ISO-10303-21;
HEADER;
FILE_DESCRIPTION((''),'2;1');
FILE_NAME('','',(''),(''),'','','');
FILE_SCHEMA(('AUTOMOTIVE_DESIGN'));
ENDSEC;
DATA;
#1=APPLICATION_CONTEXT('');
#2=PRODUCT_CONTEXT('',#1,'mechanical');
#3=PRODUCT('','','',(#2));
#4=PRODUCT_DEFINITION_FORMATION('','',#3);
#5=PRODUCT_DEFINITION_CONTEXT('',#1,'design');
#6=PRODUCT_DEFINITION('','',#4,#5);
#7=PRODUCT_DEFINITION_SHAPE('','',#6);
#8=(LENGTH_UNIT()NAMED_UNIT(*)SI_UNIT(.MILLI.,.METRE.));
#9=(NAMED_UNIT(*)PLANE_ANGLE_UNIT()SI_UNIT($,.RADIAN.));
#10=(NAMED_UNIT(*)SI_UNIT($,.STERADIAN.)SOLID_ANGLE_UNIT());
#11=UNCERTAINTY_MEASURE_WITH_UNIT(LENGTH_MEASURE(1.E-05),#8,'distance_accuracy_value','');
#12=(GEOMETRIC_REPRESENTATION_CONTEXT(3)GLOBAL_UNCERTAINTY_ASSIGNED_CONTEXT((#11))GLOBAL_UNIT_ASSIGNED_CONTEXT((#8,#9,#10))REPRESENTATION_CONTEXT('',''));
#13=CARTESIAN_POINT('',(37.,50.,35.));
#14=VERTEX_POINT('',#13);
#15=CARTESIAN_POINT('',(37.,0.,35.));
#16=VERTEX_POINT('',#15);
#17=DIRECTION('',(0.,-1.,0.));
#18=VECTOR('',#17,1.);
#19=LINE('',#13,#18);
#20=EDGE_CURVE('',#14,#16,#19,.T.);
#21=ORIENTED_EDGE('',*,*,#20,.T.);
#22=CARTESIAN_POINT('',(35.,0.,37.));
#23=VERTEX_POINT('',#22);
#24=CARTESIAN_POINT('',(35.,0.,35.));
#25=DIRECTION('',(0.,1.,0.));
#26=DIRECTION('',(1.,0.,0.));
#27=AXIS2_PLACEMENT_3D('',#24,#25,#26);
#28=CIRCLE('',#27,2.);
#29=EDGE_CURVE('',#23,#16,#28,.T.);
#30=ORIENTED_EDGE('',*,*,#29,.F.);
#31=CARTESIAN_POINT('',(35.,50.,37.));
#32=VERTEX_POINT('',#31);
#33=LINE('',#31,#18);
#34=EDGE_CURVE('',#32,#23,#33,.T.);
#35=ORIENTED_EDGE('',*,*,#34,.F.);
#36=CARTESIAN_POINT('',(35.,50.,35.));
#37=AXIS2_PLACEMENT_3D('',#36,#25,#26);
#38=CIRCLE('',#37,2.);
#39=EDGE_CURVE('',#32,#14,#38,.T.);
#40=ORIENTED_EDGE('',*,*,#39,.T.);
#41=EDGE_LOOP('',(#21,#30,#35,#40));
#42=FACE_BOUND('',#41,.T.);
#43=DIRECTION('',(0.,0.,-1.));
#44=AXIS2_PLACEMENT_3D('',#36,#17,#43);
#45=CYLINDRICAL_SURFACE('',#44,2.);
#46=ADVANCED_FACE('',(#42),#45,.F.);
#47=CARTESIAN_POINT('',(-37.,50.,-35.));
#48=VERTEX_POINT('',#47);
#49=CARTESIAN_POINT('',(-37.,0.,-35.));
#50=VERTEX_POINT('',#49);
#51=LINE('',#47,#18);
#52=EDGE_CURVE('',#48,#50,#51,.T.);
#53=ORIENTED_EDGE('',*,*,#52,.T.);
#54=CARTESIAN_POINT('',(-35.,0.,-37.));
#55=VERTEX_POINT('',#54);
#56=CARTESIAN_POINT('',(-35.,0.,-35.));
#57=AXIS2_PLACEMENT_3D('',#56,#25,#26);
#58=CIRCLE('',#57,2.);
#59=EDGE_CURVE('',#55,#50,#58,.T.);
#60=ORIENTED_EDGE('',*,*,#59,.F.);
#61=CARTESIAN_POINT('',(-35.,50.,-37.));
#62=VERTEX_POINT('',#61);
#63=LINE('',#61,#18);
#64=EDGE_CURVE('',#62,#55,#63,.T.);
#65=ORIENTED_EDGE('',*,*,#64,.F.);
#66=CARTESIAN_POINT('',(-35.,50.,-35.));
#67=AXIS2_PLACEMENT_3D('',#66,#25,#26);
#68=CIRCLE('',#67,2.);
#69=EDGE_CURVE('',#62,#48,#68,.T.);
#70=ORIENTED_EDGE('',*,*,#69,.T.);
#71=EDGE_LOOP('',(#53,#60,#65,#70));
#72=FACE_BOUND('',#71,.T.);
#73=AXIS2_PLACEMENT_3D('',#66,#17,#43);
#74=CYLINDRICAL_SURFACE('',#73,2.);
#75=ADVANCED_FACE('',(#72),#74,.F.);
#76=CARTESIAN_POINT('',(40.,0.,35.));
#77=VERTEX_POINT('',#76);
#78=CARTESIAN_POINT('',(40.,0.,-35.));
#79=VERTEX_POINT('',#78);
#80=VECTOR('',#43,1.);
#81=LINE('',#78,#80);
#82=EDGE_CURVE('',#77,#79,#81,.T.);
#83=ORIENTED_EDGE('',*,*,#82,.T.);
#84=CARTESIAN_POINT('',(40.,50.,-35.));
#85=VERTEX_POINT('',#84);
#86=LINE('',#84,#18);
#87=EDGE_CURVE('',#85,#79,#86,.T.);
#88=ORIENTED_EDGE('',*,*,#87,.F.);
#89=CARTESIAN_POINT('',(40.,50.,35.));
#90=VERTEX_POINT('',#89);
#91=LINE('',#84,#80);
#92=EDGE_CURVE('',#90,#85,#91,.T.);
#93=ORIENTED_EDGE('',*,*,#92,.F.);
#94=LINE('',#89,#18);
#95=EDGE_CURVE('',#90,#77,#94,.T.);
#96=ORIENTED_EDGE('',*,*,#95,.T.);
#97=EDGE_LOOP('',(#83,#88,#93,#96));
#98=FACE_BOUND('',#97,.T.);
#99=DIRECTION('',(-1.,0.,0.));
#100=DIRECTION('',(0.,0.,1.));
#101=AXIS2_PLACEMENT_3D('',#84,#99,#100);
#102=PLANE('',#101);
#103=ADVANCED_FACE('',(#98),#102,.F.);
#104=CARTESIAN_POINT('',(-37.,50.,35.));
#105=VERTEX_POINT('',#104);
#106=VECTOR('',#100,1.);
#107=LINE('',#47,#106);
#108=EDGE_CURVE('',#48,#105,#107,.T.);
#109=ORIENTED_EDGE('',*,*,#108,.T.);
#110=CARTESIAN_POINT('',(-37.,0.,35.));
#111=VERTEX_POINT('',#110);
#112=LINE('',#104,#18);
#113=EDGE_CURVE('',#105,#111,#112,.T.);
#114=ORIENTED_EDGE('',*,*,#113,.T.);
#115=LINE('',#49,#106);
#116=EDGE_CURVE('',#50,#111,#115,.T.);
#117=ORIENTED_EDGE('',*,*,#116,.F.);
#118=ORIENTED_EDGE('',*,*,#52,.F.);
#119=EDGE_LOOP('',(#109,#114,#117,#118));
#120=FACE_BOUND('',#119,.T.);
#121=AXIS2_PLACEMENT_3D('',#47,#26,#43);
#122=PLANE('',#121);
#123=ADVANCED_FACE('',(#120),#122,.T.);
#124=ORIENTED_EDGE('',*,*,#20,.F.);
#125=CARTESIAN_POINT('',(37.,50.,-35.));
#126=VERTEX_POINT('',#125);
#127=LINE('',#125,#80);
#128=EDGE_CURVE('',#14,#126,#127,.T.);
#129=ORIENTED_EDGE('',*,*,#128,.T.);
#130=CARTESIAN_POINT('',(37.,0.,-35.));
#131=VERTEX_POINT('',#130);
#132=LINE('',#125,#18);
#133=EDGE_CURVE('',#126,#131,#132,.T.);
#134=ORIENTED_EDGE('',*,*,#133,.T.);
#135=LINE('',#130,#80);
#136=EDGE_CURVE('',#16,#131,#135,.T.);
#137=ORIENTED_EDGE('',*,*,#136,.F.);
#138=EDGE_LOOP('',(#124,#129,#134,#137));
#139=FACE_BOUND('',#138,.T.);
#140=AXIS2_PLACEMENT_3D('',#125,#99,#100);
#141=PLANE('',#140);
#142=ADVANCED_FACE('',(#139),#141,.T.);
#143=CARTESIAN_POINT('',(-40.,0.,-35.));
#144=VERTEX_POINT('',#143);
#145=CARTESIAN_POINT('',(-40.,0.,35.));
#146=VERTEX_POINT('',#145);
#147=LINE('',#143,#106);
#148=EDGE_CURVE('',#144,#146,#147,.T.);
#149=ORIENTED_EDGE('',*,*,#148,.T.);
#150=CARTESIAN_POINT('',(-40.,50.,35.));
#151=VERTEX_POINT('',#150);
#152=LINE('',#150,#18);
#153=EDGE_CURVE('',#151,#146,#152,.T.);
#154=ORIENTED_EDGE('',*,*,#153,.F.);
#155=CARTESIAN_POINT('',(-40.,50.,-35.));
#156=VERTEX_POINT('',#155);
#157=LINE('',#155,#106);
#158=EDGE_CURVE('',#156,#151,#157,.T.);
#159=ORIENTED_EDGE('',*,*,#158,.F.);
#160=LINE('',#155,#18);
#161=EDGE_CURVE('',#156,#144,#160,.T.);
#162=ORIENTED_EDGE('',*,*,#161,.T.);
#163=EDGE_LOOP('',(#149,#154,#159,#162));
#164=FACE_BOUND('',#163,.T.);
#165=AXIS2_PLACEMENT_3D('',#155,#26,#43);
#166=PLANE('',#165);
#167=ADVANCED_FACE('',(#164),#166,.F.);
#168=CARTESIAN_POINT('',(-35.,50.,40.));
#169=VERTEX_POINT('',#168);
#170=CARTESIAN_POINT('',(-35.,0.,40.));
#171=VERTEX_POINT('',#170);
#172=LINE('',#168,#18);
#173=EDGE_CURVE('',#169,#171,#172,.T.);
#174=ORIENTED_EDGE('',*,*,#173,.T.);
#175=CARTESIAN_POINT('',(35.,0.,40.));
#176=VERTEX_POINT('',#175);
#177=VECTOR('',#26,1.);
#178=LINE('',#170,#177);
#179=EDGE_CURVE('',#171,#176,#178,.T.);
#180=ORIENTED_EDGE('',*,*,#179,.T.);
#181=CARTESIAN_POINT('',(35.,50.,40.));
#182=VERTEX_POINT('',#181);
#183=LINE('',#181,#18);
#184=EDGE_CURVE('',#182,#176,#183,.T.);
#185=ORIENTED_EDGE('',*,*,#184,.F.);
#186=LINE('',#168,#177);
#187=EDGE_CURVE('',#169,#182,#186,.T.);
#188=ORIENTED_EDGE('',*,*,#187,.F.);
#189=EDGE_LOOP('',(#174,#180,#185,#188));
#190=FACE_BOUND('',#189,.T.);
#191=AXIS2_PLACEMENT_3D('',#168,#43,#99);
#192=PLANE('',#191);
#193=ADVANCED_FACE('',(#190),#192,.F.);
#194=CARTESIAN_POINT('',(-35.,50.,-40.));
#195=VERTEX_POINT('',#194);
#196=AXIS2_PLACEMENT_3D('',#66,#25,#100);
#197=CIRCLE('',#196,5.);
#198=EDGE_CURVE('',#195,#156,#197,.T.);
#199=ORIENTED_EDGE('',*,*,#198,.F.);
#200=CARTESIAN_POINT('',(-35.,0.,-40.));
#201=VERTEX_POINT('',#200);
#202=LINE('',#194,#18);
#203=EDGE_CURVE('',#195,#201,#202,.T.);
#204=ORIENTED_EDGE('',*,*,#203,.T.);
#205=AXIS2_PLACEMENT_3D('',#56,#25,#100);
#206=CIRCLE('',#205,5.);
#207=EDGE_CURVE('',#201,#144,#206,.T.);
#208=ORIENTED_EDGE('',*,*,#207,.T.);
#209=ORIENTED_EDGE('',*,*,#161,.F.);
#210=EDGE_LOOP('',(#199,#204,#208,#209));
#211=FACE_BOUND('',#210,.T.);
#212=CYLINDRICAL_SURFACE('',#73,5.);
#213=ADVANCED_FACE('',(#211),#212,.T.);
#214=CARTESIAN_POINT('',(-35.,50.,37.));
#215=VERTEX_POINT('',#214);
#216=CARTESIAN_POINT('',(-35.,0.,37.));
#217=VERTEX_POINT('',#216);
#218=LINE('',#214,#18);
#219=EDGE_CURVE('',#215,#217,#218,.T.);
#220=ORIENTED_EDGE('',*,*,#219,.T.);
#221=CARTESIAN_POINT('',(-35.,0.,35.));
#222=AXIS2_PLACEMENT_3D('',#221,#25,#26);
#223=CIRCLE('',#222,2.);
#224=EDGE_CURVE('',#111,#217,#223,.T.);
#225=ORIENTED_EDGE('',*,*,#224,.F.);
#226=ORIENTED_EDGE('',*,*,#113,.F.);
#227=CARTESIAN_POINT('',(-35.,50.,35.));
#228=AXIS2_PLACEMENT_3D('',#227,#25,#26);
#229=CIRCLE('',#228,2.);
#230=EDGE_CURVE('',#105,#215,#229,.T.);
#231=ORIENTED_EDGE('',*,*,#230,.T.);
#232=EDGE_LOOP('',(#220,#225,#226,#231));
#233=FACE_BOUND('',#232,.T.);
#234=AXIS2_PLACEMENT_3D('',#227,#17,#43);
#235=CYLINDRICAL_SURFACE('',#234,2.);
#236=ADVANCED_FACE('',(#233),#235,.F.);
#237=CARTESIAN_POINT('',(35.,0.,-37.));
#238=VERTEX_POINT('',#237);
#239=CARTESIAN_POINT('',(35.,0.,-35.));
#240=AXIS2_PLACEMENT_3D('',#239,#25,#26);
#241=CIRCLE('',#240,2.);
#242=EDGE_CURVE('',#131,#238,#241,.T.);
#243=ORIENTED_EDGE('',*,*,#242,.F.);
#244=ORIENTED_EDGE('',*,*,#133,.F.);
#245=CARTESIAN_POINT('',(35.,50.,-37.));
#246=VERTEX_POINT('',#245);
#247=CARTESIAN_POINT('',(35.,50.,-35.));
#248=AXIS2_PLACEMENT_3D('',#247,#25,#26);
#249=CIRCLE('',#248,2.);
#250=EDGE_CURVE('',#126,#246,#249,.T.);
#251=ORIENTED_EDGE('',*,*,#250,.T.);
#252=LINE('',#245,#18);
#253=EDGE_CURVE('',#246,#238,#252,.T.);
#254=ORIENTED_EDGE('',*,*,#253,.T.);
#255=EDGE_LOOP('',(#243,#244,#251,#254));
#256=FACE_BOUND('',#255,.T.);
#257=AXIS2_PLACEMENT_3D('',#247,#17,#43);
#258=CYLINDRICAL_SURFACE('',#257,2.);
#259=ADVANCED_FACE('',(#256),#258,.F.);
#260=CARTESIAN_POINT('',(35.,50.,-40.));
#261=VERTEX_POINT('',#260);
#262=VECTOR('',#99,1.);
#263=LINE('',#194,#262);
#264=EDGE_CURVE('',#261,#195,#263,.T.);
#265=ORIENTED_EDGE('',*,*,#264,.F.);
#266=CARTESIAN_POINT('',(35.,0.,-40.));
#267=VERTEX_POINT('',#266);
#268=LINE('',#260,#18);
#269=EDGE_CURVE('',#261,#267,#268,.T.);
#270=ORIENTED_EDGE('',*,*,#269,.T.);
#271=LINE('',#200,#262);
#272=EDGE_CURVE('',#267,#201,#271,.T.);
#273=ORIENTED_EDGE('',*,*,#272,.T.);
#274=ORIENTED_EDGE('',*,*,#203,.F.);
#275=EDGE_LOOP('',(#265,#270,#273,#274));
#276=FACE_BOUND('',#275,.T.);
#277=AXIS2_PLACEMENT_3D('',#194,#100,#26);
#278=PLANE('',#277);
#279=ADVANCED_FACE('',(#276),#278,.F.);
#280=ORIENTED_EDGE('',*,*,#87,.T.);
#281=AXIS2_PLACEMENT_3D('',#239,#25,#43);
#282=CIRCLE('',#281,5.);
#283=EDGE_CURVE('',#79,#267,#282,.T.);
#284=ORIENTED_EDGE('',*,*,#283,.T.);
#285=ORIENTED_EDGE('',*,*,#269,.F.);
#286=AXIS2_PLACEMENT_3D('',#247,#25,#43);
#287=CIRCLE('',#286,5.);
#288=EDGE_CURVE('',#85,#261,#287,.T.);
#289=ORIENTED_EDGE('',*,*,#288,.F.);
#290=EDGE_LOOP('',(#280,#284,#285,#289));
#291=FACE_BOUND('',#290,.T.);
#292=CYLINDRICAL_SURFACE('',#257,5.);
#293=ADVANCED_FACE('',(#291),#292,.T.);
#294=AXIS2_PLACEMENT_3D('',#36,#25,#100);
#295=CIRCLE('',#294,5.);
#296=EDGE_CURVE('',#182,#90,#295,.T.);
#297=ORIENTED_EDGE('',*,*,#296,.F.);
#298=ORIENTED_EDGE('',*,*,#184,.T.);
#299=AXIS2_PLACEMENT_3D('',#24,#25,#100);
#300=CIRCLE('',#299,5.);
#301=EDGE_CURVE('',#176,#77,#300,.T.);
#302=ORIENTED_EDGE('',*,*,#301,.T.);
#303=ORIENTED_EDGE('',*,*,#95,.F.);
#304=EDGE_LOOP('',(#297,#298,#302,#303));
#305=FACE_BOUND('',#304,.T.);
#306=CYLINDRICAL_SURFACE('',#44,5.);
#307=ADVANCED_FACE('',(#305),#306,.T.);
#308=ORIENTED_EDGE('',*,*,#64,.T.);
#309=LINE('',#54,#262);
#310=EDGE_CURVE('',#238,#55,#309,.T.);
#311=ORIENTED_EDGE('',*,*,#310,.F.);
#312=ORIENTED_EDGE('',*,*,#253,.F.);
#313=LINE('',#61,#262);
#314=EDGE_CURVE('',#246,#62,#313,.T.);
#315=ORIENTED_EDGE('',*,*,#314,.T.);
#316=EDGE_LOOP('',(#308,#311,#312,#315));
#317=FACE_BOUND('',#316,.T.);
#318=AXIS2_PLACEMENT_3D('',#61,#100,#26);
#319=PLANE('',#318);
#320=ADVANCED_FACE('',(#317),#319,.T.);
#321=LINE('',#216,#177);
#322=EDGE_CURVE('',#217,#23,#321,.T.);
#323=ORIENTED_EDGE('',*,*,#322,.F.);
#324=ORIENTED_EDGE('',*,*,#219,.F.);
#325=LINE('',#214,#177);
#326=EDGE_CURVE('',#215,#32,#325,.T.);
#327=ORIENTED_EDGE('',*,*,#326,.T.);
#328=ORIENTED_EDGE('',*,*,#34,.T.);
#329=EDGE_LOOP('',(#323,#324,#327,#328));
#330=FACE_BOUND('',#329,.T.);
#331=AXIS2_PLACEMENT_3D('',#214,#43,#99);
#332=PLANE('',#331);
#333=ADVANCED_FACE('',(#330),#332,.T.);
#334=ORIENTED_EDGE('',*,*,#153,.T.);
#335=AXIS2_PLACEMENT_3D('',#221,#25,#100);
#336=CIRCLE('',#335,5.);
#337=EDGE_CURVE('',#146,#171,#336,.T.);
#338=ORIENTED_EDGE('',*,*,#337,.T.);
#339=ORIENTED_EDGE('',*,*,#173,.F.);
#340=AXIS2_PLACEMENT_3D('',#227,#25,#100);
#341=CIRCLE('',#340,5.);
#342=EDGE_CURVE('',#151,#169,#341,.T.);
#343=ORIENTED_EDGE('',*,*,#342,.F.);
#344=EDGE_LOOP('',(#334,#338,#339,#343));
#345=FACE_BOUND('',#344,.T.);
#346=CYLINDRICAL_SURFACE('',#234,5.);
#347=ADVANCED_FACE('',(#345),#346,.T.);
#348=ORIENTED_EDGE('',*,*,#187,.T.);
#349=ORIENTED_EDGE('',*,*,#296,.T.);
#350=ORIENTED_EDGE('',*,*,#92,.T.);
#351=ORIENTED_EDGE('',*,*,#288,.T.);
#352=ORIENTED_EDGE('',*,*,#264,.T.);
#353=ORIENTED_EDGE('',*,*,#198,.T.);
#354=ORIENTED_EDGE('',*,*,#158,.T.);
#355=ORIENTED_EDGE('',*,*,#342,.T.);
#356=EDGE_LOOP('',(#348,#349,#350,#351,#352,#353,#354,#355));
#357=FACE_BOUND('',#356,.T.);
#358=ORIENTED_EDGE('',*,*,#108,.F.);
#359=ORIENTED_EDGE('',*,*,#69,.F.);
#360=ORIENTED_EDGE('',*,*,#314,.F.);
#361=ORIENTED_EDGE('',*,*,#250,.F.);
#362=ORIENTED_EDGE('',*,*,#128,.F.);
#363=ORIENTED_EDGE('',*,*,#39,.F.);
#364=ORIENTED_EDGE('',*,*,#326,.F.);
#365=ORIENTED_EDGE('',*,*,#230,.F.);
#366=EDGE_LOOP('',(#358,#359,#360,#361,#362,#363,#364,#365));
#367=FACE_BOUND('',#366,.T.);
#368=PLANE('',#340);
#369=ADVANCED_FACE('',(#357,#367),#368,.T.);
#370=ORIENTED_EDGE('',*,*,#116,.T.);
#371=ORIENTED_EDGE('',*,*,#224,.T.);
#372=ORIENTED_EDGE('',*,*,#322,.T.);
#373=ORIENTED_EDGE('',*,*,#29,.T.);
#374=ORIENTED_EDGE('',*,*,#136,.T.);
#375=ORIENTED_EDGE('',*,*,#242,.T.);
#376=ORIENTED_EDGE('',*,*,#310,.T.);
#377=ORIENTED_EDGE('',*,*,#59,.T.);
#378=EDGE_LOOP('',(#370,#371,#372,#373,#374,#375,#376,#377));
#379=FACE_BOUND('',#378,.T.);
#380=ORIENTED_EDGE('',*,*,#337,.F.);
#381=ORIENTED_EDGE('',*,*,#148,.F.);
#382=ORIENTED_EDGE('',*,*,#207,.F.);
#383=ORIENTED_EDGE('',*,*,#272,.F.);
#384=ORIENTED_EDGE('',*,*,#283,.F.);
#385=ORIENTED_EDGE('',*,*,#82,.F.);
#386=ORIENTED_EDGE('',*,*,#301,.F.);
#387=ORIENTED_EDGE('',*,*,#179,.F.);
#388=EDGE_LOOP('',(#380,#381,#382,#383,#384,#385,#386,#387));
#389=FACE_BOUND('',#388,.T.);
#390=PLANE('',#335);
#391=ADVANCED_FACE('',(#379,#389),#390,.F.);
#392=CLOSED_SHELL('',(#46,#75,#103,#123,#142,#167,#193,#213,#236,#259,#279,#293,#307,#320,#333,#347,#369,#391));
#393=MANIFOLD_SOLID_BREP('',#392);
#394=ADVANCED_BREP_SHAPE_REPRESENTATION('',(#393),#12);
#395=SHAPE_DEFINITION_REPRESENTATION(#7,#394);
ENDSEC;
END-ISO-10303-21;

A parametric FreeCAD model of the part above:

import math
import FreeCAD as App
import Part
import Sketcher

V = App.Vector
Q = App.Units.Quantity

doc = App.newDocument("Part")
body = doc.addObject("PartDesign::Body", "Body")

sketch1 = body.newObject("Sketcher::SketchObject", "Sketch")
sketch1.AttachmentSupport = (doc.getObject("XZ_Plane"), [""])
sketch1.MapMode = "FlatFace"
sketch1.addGeometry([
    Part.LineSegment(V(35, -40, 0), V(-35, -40, 0)),
    Part.ArcOfCircle(Part.Circle(V(-35, -35, 0), V(0, 0, 1), 5), math.radians(180), math.radians(270)),
    Part.LineSegment(V(-40, -35, 0), V(-40, 35, 0)),
    Part.ArcOfCircle(Part.Circle(V(-35, 35, 0), V(0, 0, 1), 5), math.radians(90), math.radians(180)),
    Part.LineSegment(V(-35, 40, 0), V(35, 40, 0)),
    Part.ArcOfCircle(Part.Circle(V(35, 35, 0), V(0, 0, 1), 5), math.radians(0), math.radians(90)),
    Part.LineSegment(V(40, 35, 0), V(40, -35, 0)),
    Part.ArcOfCircle(Part.Circle(V(35, -35, 0), V(0, 0, 1), 5), math.radians(-90), math.radians(0)),
    Part.LineSegment(V(-35, -37, 0), V(35, -37, 0)),
    Part.ArcOfCircle(Part.Circle(V(35, -35, 0), V(0, 0, 1), 2), math.radians(-90), math.radians(0)),
    Part.LineSegment(V(37, -35, 0), V(37, 35, 0)),
    Part.ArcOfCircle(Part.Circle(V(35, 35, 0), V(0, 0, 1), 2), math.radians(0), math.radians(90)),
    Part.LineSegment(V(35, 37, 0), V(-35, 37, 0)),
    Part.ArcOfCircle(Part.Circle(V(-35, 35, 0), V(0, 0, 1), 2), math.radians(90), math.radians(180)),
    Part.LineSegment(V(-37, 35, 0), V(-37, -35, 0)),
    Part.ArcOfCircle(Part.Circle(V(-35, -35, 0), V(0, 0, 1), 2), math.radians(-180), math.radians(-90)),
], False)
sketch1.addConstraint([
    Sketcher.Constraint("Tangent", 0, 2, 1, 2),
    Sketcher.Constraint("Tangent", 1, 1, 2, 1),
    Sketcher.Constraint("Tangent", 2, 2, 3, 2),
    Sketcher.Constraint("Tangent", 3, 1, 4, 1),
    Sketcher.Constraint("Tangent", 4, 2, 5, 2),
    Sketcher.Constraint("Tangent", 5, 1, 6, 1),
    Sketcher.Constraint("Tangent", 6, 2, 7, 2),
    Sketcher.Constraint("Tangent", 7, 1, 0, 1),
    Sketcher.Constraint("Tangent", 8, 2, 9, 1),
    Sketcher.Constraint("Tangent", 9, 2, 10, 1),
    Sketcher.Constraint("Tangent", 10, 2, 11, 1),
    Sketcher.Constraint("Tangent", 11, 2, 12, 1),
    Sketcher.Constraint("Tangent", 12, 2, 13, 1),
    Sketcher.Constraint("Tangent", 13, 2, 14, 1),
    Sketcher.Constraint("Tangent", 14, 2, 15, 1),
    Sketcher.Constraint("Tangent", 15, 2, 8, 1),
    Sketcher.Constraint("Horizontal", 0),
    Sketcher.Constraint("Vertical", 2),
    Sketcher.Constraint("Horizontal", 4),
    Sketcher.Constraint("Vertical", 6),
    Sketcher.Constraint("Horizontal", 8),
    Sketcher.Constraint("Vertical", 10),
    Sketcher.Constraint("Horizontal", 12),
    Sketcher.Constraint("Vertical", 14),
    Sketcher.Constraint("Coincident", 9, 3, 7, 3),
    Sketcher.Constraint("Coincident", 11, 3, 5, 3),
    Sketcher.Constraint("Coincident", 13, 3, 3, 3),
    Sketcher.Constraint("Equal", 1, 3),
    Sketcher.Constraint("Equal", 3, 5),
    Sketcher.Constraint("Equal", 5, 7),
    Sketcher.Constraint("Equal", 13, 15),
    Sketcher.Constraint("Symmetric", 1, 3, 5, 3, -1, 1),
    Sketcher.Constraint("Equal", 12, 2),
    Sketcher.Constraint("Radius", 1, Q("5 mm")),
    Sketcher.Constraint("Radius", 9, Q("2 mm")),
    Sketcher.Constraint("DistanceX", 0, 2, 0, 1, Q("70 mm")),
])
pad1 = body.newObject("PartDesign::Pad", "Pad")
pad1.Profile = sketch1
pad1.Length = 50
pad1.Reversed = True

doc.recompute()
